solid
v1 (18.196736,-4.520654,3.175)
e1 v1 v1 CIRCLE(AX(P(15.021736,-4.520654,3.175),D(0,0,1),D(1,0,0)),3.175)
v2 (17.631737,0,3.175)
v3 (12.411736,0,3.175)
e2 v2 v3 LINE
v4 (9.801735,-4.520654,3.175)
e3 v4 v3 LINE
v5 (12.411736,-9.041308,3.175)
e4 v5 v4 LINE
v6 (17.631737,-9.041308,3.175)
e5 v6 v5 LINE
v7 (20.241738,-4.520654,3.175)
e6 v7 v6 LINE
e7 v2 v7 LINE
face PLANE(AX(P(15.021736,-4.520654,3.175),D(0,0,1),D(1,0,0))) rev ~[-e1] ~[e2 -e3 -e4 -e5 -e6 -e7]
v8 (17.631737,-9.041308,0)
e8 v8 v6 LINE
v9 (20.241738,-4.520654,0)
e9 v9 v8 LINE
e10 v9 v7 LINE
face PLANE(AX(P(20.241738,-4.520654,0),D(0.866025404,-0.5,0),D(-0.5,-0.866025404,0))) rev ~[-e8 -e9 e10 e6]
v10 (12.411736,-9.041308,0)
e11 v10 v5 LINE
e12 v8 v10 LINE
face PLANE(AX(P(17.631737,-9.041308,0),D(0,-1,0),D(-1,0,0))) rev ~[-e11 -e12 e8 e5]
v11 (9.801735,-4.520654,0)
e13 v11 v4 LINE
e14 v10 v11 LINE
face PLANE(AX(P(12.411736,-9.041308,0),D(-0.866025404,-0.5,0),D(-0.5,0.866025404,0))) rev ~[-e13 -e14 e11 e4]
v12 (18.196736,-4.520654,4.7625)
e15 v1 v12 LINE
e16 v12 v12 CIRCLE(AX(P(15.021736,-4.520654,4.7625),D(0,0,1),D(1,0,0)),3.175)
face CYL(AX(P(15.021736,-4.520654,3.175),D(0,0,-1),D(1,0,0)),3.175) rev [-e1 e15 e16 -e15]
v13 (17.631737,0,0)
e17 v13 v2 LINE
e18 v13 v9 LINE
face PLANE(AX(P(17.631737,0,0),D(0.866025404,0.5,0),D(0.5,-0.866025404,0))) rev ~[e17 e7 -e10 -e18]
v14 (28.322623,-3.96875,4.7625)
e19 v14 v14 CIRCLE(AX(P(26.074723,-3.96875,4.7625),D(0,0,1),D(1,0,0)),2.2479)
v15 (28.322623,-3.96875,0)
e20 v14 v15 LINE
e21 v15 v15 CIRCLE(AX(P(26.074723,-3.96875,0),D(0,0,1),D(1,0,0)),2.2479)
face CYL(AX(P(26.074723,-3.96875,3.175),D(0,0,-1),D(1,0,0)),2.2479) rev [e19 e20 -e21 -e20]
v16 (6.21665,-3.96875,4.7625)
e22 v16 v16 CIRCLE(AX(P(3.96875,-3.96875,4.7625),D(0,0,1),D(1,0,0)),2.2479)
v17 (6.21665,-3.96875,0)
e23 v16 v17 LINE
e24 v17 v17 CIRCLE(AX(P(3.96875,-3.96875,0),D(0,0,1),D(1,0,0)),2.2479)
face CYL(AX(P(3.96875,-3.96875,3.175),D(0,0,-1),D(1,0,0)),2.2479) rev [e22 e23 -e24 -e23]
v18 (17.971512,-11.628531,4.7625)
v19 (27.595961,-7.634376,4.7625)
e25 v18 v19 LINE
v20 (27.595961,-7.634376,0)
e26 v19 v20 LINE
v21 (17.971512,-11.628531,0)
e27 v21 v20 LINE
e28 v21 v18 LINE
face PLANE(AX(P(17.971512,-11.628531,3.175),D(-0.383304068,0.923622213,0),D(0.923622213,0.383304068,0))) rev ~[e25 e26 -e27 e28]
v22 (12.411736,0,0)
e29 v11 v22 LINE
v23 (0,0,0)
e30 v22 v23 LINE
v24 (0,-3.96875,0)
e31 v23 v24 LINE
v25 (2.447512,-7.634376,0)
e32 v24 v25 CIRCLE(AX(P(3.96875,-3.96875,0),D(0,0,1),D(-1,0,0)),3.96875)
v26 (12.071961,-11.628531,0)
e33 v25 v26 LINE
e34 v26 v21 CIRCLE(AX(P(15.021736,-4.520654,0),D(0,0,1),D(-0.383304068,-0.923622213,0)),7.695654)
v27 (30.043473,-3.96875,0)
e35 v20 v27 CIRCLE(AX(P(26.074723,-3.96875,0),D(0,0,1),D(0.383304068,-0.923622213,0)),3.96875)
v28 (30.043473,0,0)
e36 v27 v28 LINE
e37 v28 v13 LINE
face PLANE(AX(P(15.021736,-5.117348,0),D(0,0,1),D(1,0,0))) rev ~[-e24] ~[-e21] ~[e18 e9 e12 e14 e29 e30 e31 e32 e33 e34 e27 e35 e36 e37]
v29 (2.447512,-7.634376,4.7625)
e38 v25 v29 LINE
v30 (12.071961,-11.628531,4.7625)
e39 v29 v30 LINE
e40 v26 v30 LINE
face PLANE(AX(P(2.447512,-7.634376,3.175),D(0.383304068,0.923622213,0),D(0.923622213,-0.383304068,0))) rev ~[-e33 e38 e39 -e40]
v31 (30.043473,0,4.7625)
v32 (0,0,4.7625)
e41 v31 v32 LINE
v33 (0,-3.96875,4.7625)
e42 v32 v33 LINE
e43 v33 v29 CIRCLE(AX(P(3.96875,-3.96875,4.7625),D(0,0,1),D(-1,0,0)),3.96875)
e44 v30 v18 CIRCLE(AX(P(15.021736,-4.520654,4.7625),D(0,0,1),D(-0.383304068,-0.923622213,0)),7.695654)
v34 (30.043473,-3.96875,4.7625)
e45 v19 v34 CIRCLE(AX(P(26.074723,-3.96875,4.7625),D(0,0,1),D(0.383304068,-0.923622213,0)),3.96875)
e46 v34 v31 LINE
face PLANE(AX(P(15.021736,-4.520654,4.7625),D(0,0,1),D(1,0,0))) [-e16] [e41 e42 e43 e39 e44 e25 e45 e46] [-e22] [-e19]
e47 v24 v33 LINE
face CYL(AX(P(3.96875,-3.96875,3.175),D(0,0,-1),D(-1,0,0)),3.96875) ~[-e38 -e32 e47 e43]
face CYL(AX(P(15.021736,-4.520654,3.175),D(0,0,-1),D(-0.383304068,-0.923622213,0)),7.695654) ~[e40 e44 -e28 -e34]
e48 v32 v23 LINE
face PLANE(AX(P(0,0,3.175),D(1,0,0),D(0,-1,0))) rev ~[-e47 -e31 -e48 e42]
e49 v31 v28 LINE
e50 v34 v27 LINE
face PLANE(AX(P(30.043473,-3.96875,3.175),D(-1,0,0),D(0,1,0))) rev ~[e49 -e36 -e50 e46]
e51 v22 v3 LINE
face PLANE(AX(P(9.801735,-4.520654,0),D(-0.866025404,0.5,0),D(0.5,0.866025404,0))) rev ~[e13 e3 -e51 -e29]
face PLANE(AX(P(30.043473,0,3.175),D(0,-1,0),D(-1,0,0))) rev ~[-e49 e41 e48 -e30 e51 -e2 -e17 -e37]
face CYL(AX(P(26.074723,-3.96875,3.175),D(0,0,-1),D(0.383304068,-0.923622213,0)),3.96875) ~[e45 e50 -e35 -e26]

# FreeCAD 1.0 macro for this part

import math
import FreeCAD as App
import Part
import Sketcher

V = App.Vector
Q = App.Units.Quantity

doc = App.newDocument("Part")
params = doc.addObject("Spreadsheet::Sheet", "Params")
for row, (alias, value) in enumerate([
    ("sketch1_diameter", "0.177 in"),
    ("sketch1_radius", "0.15625 in"),
    ("sketch1_height", "0.15625 in"),
    ("pad1_length", "0.125 in"),
    ("sketch2_diameter", "0.25 in"),
    ("sketch2_diameter2", "0.177 in"),
    ("sketch2_radius", "0.15625 in"),
    ("sketch2_height", "0.15625 in"),
    ("pad2_length", "0.0625 in"),
], start=1):
    params.set(f"A{row}", alias)
    params.set(f"B{row}", "=" + value)
    params.setAlias(f"B{row}", alias)

body = doc.addObject("PartDesign::Body", "Body")

sketch1 = doc.addObject("Sketcher::SketchObject", "Sketch")
body.addObject(sketch1)
sketch1.AttachmentSupport = (doc.XY_Plane, [""])
sketch1.MapMode = "FlatFace"
sketch1.addGeometry([
    Part.LineSegment(V(12.4, 0, 0), V(0, 0, 0)),
    Part.LineSegment(V(0, 0, 0), V(0, -4, 0)),
    Part.ArcOfCircle(Part.Circle(V(4, -4, 0), V(0, 0, 1), 4), math.radians(180), math.radians(247)),
    Part.LineSegment(V(2.4, -7.6, 0), V(12.1, -11.6, 0)),
    Part.ArcOfCircle(Part.Circle(V(15, -4.5, 0), V(0, 0, 1), 7.7), math.radians(-113), math.radians(-67)),
    Part.LineSegment(V(18, -11.6, 0), V(27.6, -7.6, 0)),
    Part.ArcOfCircle(Part.Circle(V(26.1, -4, 0), V(0, 0, 1), 4), math.radians(-67), math.radians(0)),
    Part.LineSegment(V(30, -4, 0), V(30, 0, 0)),
    Part.LineSegment(V(30, 0, 0), V(17.6, 0, 0)),
    Part.LineSegment(V(17.6, 0, 0), V(20.2, -4.5, 0)),
    Part.LineSegment(V(20.2, -4.5, 0), V(17.6, -9, 0)),
    Part.LineSegment(V(17.6, -9, 0), V(12.4, -9, 0)),
    Part.LineSegment(V(12.4, -9, 0), V(9.8, -4.5, 0)),
    Part.LineSegment(V(9.8, -4.5, 0), V(12.4, 0, 0)),
    Part.Circle(V(4, -4, 0), V(0, 0, 1), 2.2),
    Part.Circle(V(26.1, -4, 0), V(0, 0, 1), 2.2),
], False)
sketch1.addConstraint([
    Sketcher.Constraint("Coincident", 0, 2, 1, 1),
    Sketcher.Constraint("Tangent", 1, 2, 2, 1),
    Sketcher.Constraint("Tangent", 2, 2, 3, 1),
    Sketcher.Constraint("Tangent", 3, 2, 4, 1),
    Sketcher.Constraint("Tangent", 4, 2, 5, 1),
    Sketcher.Constraint("Tangent", 5, 2, 6, 1),
    Sketcher.Constraint("Tangent", 6, 2, 7, 1),
    Sketcher.Constraint("Coincident", 7, 2, 8, 1),
    Sketcher.Constraint("Coincident", 8, 2, 9, 1),
    Sketcher.Constraint("Coincident", 9, 2, 10, 1),
    Sketcher.Constraint("Coincident", 10, 2, 11, 1),
    Sketcher.Constraint("Coincident", 11, 2, 12, 1),
    Sketcher.Constraint("Coincident", 12, 2, 13, 1),
    Sketcher.Constraint("Coincident", 13, 2, 0, 1),
    Sketcher.Constraint("Horizontal", 0),
    Sketcher.Constraint("Vertical", 1),
    Sketcher.Constraint("Vertical", 7),
    Sketcher.Constraint("Horizontal", 8),
    Sketcher.Constraint("Horizontal", 11),
    Sketcher.Constraint("Coincident", 0, 2, -1, 1),
    Sketcher.Constraint("Coincident", 14, 3, 2, 3),
    Sketcher.Constraint("Coincident", 15, 3, 6, 3),
    Sketcher.Constraint("Equal", 2, 6),
    Sketcher.Constraint("Equal", 14, 15),
    Sketcher.Constraint("PointOnObject", 7, 2, -1),
    Sketcher.Constraint("Parallel", 9, 12),
    Sketcher.Constraint("Parallel", 10, 13),
    Sketcher.Constraint("Horizontal", 2, 3, 6, 3),
    Sketcher.Constraint("Horizontal", 3, 2, 4, 2),
    Sketcher.Constraint("Horizontal", 4, 3, 9, 2),
    Sketcher.Constraint("Horizontal", 9, 2, 12, 2),
    Sketcher.Constraint("Vertical", 8, 2, 10, 2),
    Sketcher.Constraint("Vertical", 11, 2, 13, 2),
    Sketcher.Constraint("Equal", 0, 8),
    Sketcher.Constraint("Diameter", 14, Q("0.177 in")),
    Sketcher.Constraint("Angle", 9, Q("-60 deg")),
    Sketcher.Constraint("Radius", 2, Q("0.15625 in")),
    Sketcher.Constraint("DistanceY", 1, 2, 1, 1, Q("0.15625 in")),
    Sketcher.Constraint("DistanceX", 11, 2, 11, 1, Q("5.220001 mm")),
    Sketcher.Constraint("Radius", 4, Q("7.695654 mm")),
    Sketcher.Constraint("Distance", 9, Q("5.220001 mm")),
    Sketcher.Constraint("DistanceX", 3, 2, 5, 2, Q("15.524 mm")),
])
sketch1.setExpression("Constraints[34]", "Params.sketch1_diameter")
sketch1.setExpression("Constraints[36]", "Params.sketch1_radius")
sketch1.setExpression("Constraints[37]", "Params.sketch1_height")
pad1 = doc.addObject("PartDesign::Pad", "Pad")
body.addObject(pad1)
pad1.Profile = sketch1
pad1.setExpression("Length", "Params.pad1_length")

sketch2 = doc.addObject("Sketcher::SketchObject", "Sketch001")
body.addObject(sketch2)
sketch2.AttachmentSupport = (doc.XY_Plane, [""])
sketch2.MapMode = "FlatFace"
sketch2.AttachmentOffset = App.Placement(V(0, 0, 0.125 * 25.4), App.Rotation())
sketch2.addGeometry([
    Part.LineSegment(V(0, 0, 0), V(0, -4, 0)),
    Part.ArcOfCircle(Part.Circle(V(4, -4, 0), V(0, 0, 1), 4), math.radians(180), math.radians(247)),
    Part.LineSegment(V(2.4, -7.6, 0), V(12.1, -11.6, 0)),
    Part.ArcOfCircle(Part.Circle(V(15, -4.5, 0), V(0, 0, 1), 7.7), math.radians(-113), math.radians(-67)),
    Part.LineSegment(V(18, -11.6, 0), V(27.6, -7.6, 0)),
    Part.ArcOfCircle(Part.Circle(V(26.1, -4, 0), V(0, 0, 1), 4), math.radians(-67), math.radians(0)),
    Part.LineSegment(V(30, -4, 0), V(30, 0, 0)),
    Part.LineSegment(V(30, 0, 0), V(0, 0, 0)),
    Part.Circle(V(4, -4, 0), V(0, 0, 1), 2.2),
    Part.Circle(V(15, -4.5, 0), V(0, 0, 1), 3.2),
    Part.Circle(V(26.1, -4, 0), V(0, 0, 1), 2.2),
], False)
sketch2.addConstraint([
    Sketcher.Constraint("Tangent", 0, 2, 1, 1),
    Sketcher.Constraint("Tangent", 1, 2, 2, 1),
    Sketcher.Constraint("Tangent", 2, 2, 3, 1),
    Sketcher.Constraint("Tangent", 3, 2, 4, 1),
    Sketcher.Constraint("Tangent", 4, 2, 5, 1),
    Sketcher.Constraint("Tangent", 5, 2, 6, 1),
    Sketcher.Constraint("Coincident", 6, 2, 7, 1),
    Sketcher.Constraint("Coincident", 7, 2, 0, 1),
    Sketcher.Constraint("Vertical", 0),
    Sketcher.Constraint("Vertical", 6),
    Sketcher.Constraint("Horizontal", 7),
    Sketcher.Constraint("Coincident", 7, 2, -1, 1),
    Sketcher.Constraint("Coincident", 8, 3, 1, 3),
    Sketcher.Constraint("Coincident", 9, 3, 3, 3),
    Sketcher.Constraint("Coincident", 10, 3, 5, 3),
    Sketcher.Constraint("Equal", 1, 5),
    Sketcher.Constraint("Equal", 8, 10),
    Sketcher.Constraint("Horizontal", 1, 3, 5, 3),
    Sketcher.Constraint("Horizontal", 2, 2, 3, 2),
    Sketcher.Constraint("Diameter", 9, Q("0.25 in")),
    Sketcher.Constraint("Diameter", 8, Q("0.177 in")),
    Sketcher.Constraint("Radius", 1, Q("0.15625 in")),
    Sketcher.Constraint("DistanceY", 0, 2, 0, 1, Q("0.15625 in")),
    Sketcher.Constraint("Radius", 3, Q("7.695654 mm")),
    Sketcher.Constraint("Distance", 2, Q("10.420331 mm")),
    Sketcher.Constraint("DistanceX", 7, 2, 7, 1, Q("30.043473 mm")),
])
sketch2.setExpression("Constraints[19]", "Params.sketch2_diameter")
sketch2.setExpression("Constraints[20]", "Params.sketch2_diameter2")
sketch2.setExpression("Constraints[21]", "Params.sketch2_radius")
sketch2.setExpression("Constraints[22]", "Params.sketch2_height")
pad2 = doc.addObject("PartDesign::Pad", "Pad001")
body.addObject(pad2)
pad2.Profile = sketch2
pad2.setExpression("Length", "Params.pad2_length")

doc.recompute()
